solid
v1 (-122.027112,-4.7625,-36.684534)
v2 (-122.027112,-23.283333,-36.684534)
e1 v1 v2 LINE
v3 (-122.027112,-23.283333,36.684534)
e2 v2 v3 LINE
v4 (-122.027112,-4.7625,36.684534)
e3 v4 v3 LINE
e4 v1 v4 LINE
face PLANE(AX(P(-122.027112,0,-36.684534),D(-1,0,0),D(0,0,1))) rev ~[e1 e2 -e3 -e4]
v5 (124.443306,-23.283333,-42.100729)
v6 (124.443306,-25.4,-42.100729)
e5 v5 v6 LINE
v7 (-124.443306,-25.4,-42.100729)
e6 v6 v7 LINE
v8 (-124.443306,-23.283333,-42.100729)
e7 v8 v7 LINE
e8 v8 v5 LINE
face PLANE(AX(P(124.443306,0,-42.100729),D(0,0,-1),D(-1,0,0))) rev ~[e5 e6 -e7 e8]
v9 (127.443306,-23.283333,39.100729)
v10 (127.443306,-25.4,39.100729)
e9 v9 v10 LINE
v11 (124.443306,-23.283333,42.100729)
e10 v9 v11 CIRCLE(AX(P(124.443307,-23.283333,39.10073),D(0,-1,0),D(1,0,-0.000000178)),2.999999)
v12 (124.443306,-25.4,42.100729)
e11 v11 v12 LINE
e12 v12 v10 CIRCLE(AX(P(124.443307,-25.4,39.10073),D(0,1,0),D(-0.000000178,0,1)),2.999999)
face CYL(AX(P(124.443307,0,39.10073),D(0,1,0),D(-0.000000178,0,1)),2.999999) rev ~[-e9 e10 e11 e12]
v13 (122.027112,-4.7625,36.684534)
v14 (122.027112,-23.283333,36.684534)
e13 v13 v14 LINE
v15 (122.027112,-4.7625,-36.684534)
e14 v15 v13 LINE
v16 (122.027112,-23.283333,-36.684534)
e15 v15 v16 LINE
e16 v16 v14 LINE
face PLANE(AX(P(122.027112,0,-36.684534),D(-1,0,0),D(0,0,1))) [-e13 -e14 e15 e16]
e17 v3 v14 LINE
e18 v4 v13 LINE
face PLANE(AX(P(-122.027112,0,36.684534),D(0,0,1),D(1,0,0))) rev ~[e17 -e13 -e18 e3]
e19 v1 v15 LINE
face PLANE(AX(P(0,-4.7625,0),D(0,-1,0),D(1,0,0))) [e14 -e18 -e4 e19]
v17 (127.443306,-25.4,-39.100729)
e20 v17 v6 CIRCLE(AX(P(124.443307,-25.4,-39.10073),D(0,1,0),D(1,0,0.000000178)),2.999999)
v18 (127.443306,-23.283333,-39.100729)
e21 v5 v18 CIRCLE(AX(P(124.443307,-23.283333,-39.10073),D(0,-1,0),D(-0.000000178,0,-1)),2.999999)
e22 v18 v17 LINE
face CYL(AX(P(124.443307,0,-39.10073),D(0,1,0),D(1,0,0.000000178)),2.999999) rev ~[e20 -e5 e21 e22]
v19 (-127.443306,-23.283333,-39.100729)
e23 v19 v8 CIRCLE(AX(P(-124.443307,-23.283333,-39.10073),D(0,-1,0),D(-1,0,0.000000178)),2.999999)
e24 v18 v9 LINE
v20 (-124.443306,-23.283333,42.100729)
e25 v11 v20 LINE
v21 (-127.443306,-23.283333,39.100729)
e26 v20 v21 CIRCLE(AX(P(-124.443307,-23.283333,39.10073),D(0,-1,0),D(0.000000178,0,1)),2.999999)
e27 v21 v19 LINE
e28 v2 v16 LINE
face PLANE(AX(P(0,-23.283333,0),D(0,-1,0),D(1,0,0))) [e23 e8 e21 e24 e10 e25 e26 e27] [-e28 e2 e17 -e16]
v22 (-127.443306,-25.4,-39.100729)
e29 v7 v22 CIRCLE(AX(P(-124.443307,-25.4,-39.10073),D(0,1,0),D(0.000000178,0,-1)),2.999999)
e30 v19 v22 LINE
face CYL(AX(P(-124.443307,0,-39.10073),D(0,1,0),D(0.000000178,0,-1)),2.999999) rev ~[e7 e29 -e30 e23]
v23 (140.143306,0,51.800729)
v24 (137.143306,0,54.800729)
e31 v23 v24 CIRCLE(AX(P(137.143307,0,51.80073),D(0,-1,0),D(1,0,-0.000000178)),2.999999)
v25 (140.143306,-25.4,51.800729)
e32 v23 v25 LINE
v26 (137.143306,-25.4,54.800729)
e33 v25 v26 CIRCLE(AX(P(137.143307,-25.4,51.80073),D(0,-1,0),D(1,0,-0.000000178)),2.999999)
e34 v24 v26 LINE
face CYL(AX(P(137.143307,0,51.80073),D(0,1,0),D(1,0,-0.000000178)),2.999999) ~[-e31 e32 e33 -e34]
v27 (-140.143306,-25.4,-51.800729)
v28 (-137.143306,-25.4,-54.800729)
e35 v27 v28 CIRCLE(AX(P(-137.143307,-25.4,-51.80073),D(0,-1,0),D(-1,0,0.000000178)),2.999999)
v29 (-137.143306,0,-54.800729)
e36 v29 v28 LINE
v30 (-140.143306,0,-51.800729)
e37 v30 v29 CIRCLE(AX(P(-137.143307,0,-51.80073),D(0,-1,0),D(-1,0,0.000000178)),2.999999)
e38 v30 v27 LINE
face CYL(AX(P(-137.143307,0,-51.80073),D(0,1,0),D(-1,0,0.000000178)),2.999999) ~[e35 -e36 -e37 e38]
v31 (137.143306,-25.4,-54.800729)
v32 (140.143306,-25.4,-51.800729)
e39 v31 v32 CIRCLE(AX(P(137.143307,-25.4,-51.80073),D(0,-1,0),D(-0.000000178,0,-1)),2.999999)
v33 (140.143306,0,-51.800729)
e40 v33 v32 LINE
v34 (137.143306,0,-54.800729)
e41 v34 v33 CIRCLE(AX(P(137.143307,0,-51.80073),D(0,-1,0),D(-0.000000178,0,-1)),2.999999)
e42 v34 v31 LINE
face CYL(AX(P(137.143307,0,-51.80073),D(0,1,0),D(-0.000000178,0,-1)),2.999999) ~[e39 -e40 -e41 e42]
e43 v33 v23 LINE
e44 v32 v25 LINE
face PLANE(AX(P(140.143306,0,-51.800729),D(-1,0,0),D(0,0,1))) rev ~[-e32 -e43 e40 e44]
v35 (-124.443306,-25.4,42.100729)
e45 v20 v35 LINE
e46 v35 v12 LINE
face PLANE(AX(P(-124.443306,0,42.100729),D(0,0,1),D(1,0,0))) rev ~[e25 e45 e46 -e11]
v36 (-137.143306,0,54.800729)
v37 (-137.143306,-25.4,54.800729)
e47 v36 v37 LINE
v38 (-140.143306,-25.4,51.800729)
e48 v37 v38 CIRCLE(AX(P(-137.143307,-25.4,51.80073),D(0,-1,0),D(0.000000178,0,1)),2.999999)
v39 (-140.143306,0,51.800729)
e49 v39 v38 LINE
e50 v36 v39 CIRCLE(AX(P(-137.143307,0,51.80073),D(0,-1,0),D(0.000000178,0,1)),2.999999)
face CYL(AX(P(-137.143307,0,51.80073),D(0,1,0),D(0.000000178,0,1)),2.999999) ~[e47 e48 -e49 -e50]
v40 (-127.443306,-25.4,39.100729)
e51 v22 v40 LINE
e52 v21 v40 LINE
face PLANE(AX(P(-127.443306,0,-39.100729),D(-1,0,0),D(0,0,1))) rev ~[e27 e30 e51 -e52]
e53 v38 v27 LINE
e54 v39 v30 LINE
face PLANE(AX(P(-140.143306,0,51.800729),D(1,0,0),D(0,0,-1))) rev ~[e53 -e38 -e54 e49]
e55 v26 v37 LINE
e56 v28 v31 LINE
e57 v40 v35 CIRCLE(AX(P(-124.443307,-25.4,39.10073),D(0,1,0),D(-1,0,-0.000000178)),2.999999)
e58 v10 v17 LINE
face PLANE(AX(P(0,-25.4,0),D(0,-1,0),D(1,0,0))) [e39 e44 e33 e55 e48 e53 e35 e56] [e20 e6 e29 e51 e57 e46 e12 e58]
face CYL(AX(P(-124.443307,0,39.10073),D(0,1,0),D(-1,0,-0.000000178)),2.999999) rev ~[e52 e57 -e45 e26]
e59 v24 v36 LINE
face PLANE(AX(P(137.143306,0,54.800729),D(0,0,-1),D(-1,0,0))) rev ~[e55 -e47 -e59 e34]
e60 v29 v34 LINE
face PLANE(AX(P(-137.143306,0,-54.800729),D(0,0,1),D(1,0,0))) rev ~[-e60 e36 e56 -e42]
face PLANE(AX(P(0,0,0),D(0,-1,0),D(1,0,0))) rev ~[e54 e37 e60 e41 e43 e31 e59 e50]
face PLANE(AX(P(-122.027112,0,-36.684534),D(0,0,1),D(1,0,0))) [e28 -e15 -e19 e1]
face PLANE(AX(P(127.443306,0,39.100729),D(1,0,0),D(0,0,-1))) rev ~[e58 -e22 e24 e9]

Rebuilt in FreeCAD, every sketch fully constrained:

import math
import FreeCAD as App
import Part
import Sketcher

V = App.Vector
Q = App.Units.Quantity


def add_polygon(sketch, points):
    """Adds a closed chain of lines whose ends are joined by coincident constraints."""
    first, n = sketch.GeometryCount, len(points)
    for a, b in zip(points, points[1:] + points[:1]):
        sketch.addGeometry(Part.LineSegment(App.Vector(*a, 0), App.Vector(*b, 0)), False)
    for i in range(n):
        sketch.addConstraint(Sketcher.Constraint("Coincident", first + i, 2, first + (i + 1) % n, 1))

doc = App.newDocument("Part")
body = doc.addObject("PartDesign::Body", "Body")

sketch1 = body.newObject("Sketcher::SketchObject", "Sketch")
sketch1.AttachmentSupport = (doc.getObject("XZ_Plane"), [""])
sketch1.MapMode = "FlatFace"
sketch1.addGeometry([
    Part.LineSegment(V(137.143306, 54.800729, 0), V(-137.143306, 54.800729, 0)),
    Part.ArcOfCircle(Part.Circle(V(-137.143307, 51.80073, 0), V(0, 0, 1), 2.999999), math.radians(89.99999), math.radians(180.00001)),
    Part.LineSegment(V(-140.143306, 51.800729, 0), V(-140.143306, -51.800729, 0)),
    Part.ArcOfCircle(Part.Circle(V(-137.143307, -51.80073, 0), V(0, 0, 1), 2.999999), math.radians(179.99999), math.radians(270.00001)),
    Part.LineSegment(V(-137.143306, -54.800729, 0), V(137.143306, -54.800729, 0)),
    Part.ArcOfCircle(Part.Circle(V(137.143307, -51.80073, 0), V(0, 0, 1), 2.999999), math.radians(-90.00001), math.radians(0.00001)),
    Part.LineSegment(V(140.143306, -51.800729, 0), V(140.143306, 51.800729, 0)),
    Part.ArcOfCircle(Part.Circle(V(137.143307, 51.80073, 0), V(0, 0, 1), 2.999999), math.radians(-0.00001), math.radians(90.00001)),
    Part.LineSegment(V(-127.443306, -39.100729, 0), V(-127.443306, 39.100729, 0)),
    Part.ArcOfCircle(Part.Circle(V(-124.443307, 39.10073, 0), V(0, 0, 1), 2.999999), math.radians(89.99999), math.radians(180.00001)),
    Part.LineSegment(V(-124.443306, 42.100729, 0), V(124.443306, 42.100729, 0)),
    Part.ArcOfCircle(Part.Circle(V(124.443307, 39.10073, 0), V(0, 0, 1), 2.999999), math.radians(-0.00001), math.radians(90.00001)),
    Part.LineSegment(V(127.443306, 39.100729, 0), V(127.443306, -39.100729, 0)),
    Part.ArcOfCircle(Part.Circle(V(124.443307, -39.10073, 0), V(0, 0, 1), 2.999999), math.radians(-90.00001), math.radians(0.00001)),
    Part.LineSegment(V(124.443306, -42.100729, 0), V(-124.443306, -42.100729, 0)),
    Part.ArcOfCircle(Part.Circle(V(-124.443307, -39.10073, 0), V(0, 0, 1), 2.999999), math.radians(179.99999), math.radians(270.00001)),
], False)
sketch1.addConstraint([
    Sketcher.Constraint("Tangent", 0, 2, 1, 1),
    Sketcher.Constraint("Tangent", 1, 2, 2, 1),
    Sketcher.Constraint("Tangent", 2, 2, 3, 1),
    Sketcher.Constraint("Tangent", 3, 2, 4, 1),
    Sketcher.Constraint("Tangent", 4, 2, 5, 1),
    Sketcher.Constraint("Tangent", 5, 2, 6, 1),
    Sketcher.Constraint("Tangent", 6, 2, 7, 1),
    Sketcher.Constraint("Tangent", 7, 2, 0, 1),
    Sketcher.Constraint("Tangent", 8, 2, 9, 2),
    Sketcher.Constraint("Tangent", 9, 1, 10, 1),
    Sketcher.Constraint("Tangent", 10, 2, 11, 2),
    Sketcher.Constraint("Tangent", 11, 1, 12, 1),
    Sketcher.Constraint("Tangent", 12, 2, 13, 2),
    Sketcher.Constraint("Tangent", 13, 1, 14, 1),
    Sketcher.Constraint("Tangent", 14, 2, 15, 2),
    Sketcher.Constraint("Tangent", 15, 1, 8, 1),
    Sketcher.Constraint("Horizontal", 0),
    Sketcher.Constraint("Vertical", 2),
    Sketcher.Constraint("Horizontal", 4),
    Sketcher.Constraint("Vertical", 6),
    Sketcher.Constraint("Vertical", 8),
    Sketcher.Constraint("Horizontal", 10),
    Sketcher.Constraint("Vertical", 12),
    Sketcher.Constraint("Horizontal", 14),
    Sketcher.Constraint("Equal", 1, 3),
    Sketcher.Constraint("Equal", 3, 5),
    Sketcher.Constraint("Equal", 5, 7),
    Sketcher.Constraint("Equal", 7, 9),
    Sketcher.Constraint("Equal", 9, 11),
    Sketcher.Constraint("Equal", 11, 13),
    Sketcher.Constraint("Equal", 13, 15),
    Sketcher.Constraint("Symmetric", 1, 3, 5, 3, -1, 1),
    Sketcher.Constraint("Symmetric", 9, 3, 13, 3, -1, 1),
    Sketcher.Constraint("DistanceX", 1, 3, 9, 3, Q("0.5 in")),
    Sketcher.Constraint("DistanceY", 9, 3, 1, 3, Q("0.5 in")),
    Sketcher.Constraint("Radius", 1, 2.999999),
    Sketcher.Constraint("DistanceX", 0, 2, 0, 1, 274.286612),
    Sketcher.Constraint("DistanceY", 8, 1, 8, 2, 78.201458),
])
pad1 = body.newObject("PartDesign::Pad", "Pad")
pad1.Profile = sketch1
pad1.Length = Q("1 in")

sketch2 = body.newObject("Sketcher::SketchObject", "Sketch001")
sketch2.AttachmentSupport = (doc.getObject("XZ_Plane"), [""])
sketch2.MapMode = "FlatFace"
sketch2.addGeometry(Part.LineSegment(V(124.443306, 42.100729, 0), V(-124.443306, 42.100729, 0)), False)
sketch2.addGeometry(Part.ArcOfCircle(Part.Circle(V(-124.443307, 39.10073, 0), V(0, 0, 1), 2.999999), math.radians(89.99999), math.radians(180.00001)), False)
sketch2.addGeometry(Part.LineSegment(V(-127.443306, 39.100729, 0), V(-127.443306, -39.100729, 0)), False)
sketch2.addGeometry(Part.ArcOfCircle(Part.Circle(V(-124.443307, -39.10073, 0), V(0, 0, 1), 2.999999), math.radians(179.99999), math.radians(270.00001)), False)
sketch2.addGeometry(Part.LineSegment(V(-124.443306, -42.100729, 0), V(124.443306, -42.100729, 0)), False)
sketch2.addGeometry(Part.ArcOfCircle(Part.Circle(V(124.443307, -39.10073, 0), V(0, 0, 1), 2.999999), math.radians(-90.00001), math.radians(0.00001)), False)
sketch2.addGeometry(Part.LineSegment(V(127.443306, -39.100729, 0), V(127.443306, 39.100729, 0)), False)
sketch2.addGeometry(Part.ArcOfCircle(Part.Circle(V(124.443307, 39.10073, 0), V(0, 0, 1), 2.999999), math.radians(-0.00001), math.radians(90.00001)), False)
add_polygon(sketch2, [(122.027112, -36.684534), (-122.027112, -36.684534), (-122.027112, 36.684534), (122.027112, 36.684534)])
sketch2.addConstraint([
    Sketcher.Constraint("Tangent", 0, 2, 1, 1),
    Sketcher.Constraint("Tangent", 1, 2, 2, 1),
    Sketcher.Constraint("Tangent", 2, 2, 3, 1),
    Sketcher.Constraint("Tangent", 3, 2, 4, 1),
    Sketcher.Constraint("Tangent", 4, 2, 5, 1),
    Sketcher.Constraint("Tangent", 5, 2, 6, 1),
    Sketcher.Constraint("Tangent", 6, 2, 7, 1),
    Sketcher.Constraint("Tangent", 7, 2, 0, 1),
    Sketcher.Constraint("Horizontal", 0),
    Sketcher.Constraint("Vertical", 2),
    Sketcher.Constraint("Horizontal", 4),
    Sketcher.Constraint("Vertical", 6),
    Sketcher.Constraint("Horizontal", 8),
    Sketcher.Constraint("Vertical", 9),
    Sketcher.Constraint("Horizontal", 10),
    Sketcher.Constraint("Vertical", 11),
    Sketcher.Constraint("Equal", 1, 3),
    Sketcher.Constraint("Equal", 3, 5),
    Sketcher.Constraint("Equal", 5, 7),
    Sketcher.Constraint("Symmetric", 1, 3, 5, 3, -1, 1),
    Sketcher.Constraint("Symmetric", 8, 2, 10, 2, -1, 1),
    Sketcher.Constraint("Radius", 1, 2.999999),
    Sketcher.Constraint("DistanceY", 2, 2, 2, 1, 78.201458),
    Sketcher.Constraint("DistanceY", 9, 1, 9, 2, 73.369068),
    Sketcher.Constraint("DistanceX", 0, 2, 0, 1, 248.886612),
    Sketcher.Constraint("DistanceX", 8, 2, 8, 1, 244.054224),
])
pad2 = body.newObject("PartDesign::Pad", "Pad001")
pad2.Profile = sketch2
pad2.Length = 23.283333

sketch3 = body.newObject("Sketcher::SketchObject", "Sketch002")
sketch3.AttachmentSupport = (doc.getObject("XZ_Plane"), [""])
sketch3.MapMode = "FlatFace"
add_polygon(sketch3, [(-122.027112, 36.684534), (-122.027112, -36.684534), (122.027112, -36.684534), (122.027112, 36.684534)])
sketch3.addConstraint([
    Sketcher.Constraint("Vertical", 0),
    Sketcher.Constraint("Horizontal", 1),
    Sketcher.Constraint("Vertical", 2),
    Sketcher.Constraint("Horizontal", 3),
    Sketcher.Constraint("Symmetric", 0, 2, 2, 2, -1, 1),
    Sketcher.Constraint("DistanceY", 0, 2, 0, 1, 73.369068),
    Sketcher.Constraint("DistanceX", 1, 1, 1, 2, 244.054224),
])
pad3 = body.newObject("PartDesign::Pad", "Pad002")
pad3.Profile = sketch3
pad3.Length = Q("0.1875 in")

doc.recompute()
